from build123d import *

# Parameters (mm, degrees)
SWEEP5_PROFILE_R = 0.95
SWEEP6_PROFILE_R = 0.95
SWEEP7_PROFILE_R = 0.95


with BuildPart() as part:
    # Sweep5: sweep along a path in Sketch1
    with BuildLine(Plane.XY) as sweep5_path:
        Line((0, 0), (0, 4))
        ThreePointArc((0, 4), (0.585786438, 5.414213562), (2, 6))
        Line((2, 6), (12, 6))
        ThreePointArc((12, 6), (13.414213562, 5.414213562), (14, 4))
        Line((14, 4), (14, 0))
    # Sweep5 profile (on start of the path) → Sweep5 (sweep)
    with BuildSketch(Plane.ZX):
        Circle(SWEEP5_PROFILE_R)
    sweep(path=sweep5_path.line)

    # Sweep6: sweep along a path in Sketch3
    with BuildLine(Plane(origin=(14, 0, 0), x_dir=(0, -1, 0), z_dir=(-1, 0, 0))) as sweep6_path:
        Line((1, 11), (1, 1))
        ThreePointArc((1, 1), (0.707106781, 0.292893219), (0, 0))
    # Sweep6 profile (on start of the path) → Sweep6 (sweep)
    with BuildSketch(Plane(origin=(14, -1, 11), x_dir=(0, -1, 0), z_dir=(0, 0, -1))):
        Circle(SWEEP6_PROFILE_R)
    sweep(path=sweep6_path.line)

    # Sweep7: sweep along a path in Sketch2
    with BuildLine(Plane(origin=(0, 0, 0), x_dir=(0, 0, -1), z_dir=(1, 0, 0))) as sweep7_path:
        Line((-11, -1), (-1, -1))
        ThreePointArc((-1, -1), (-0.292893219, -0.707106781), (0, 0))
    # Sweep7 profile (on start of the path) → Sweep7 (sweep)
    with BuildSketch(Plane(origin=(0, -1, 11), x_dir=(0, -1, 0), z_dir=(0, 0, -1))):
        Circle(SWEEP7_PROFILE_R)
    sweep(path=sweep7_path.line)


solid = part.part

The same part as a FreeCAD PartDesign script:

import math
import FreeCAD as App
import Part
import Sketcher
Q = App.Units.Quantity

doc = App.newDocument("Part")
body = doc.addObject("PartDesign::Body", "Body")

# Sketch on XZ plane
sketch1 = body.newObject("Sketcher::SketchObject", "Sketch")
sketch1.AttachmentSupport = (doc.getObject("XZ_Plane"), [""])
sketch1.MapMode = "FlatFace"
sketch1.addGeometry(Part.Circle(App.Vector(0, 0, 0), App.Vector(0, 0, 1), 0.9), False)
sketch1.addConstraint(Sketcher.Constraint("Coincident", 0, 3, -1, 1))
sketch1.addConstraint(Sketcher.Constraint("Diameter", 0, Q("1.9 mm")))

# Sketch on XY plane
sketch2 = body.newObject("Sketcher::SketchObject", "Sketch001")
sketch2.AttachmentSupport = (doc.getObject("XY_Plane"), [""])
sketch2.MapMode = "FlatFace"
sketch2.addGeometry(Part.LineSegment(App.Vector(0, 0, 0), App.Vector(0, 4, 0)), False)
sketch2.addGeometry(Part.ArcOfCircle(Part.Circle(App.Vector(2, 4, 0), App.Vector(0, 0, 1), 2), math.radians(90), math.radians(180)), False)
sketch2.addGeometry(Part.LineSegment(App.Vector(2, 6, 0), App.Vector(12, 6, 0)), False)
sketch2.addGeometry(Part.ArcOfCircle(Part.Circle(App.Vector(12, 4, 0), App.Vector(0, 0, 1), 2), math.radians(0), math.radians(90)), False)
sketch2.addGeometry(Part.LineSegment(App.Vector(14, 4, 0), App.Vector(14, 0, 0)), False)
sketch2.addConstraint(Sketcher.Constraint("Tangent", 0, 2, 1, 2))
sketch2.addConstraint(Sketcher.Constraint("Tangent", 1, 1, 2, 1))
sketch2.addConstraint(Sketcher.Constraint("Tangent", 2, 2, 3, 2))
sketch2.addConstraint(Sketcher.Constraint("Tangent", 3, 1, 4, 1))
sketch2.addConstraint(Sketcher.Constraint("Vertical", 0))
sketch2.addConstraint(Sketcher.Constraint("Horizontal", 2))
sketch2.addConstraint(Sketcher.Constraint("Vertical", 4))
sketch2.addConstraint(Sketcher.Constraint("Coincident", 0, 1, -1, 1))
sketch2.addConstraint(Sketcher.Constraint("Equal", 1, 3))
sketch2.addConstraint(Sketcher.Constraint("PointOnObject", 4, 2, -1))
sketch2.addConstraint(Sketcher.Constraint("Radius", 1, Q("2 mm")))
sketch2.addConstraint(Sketcher.Constraint("DistanceX", 2, 1, 2, 2, Q("10 mm")))
sketch2.addConstraint(Sketcher.Constraint("DistanceY", 0, 1, 0, 2, Q("4 mm")))
doc.recompute()

additivepipe = body.newObject("PartDesign::AdditivePipe", "AdditivePipe")
additivepipe.Profile = sketch1
additivepipe.Spine = (sketch2, ["Edge1", "Edge2", "Edge3", "Edge4", "Edge5"])

# Sketch on XY plane
sketch3 = body.newObject("Sketcher::SketchObject", "Sketch002")
sketch3.AttachmentSupport = (doc.getObject("XY_Plane"), [""])
sketch3.MapMode = "FlatFace"
sketch3.AttachmentOffset = App.Placement(App.Vector(0, 0, 11), App.Rotation())
sketch3.addGeometry(Part.Circle(App.Vector(14, -1, 0), App.Vector(0, 0, 1), 0.9), False)
sketch3.addConstraint(Sketcher.Constraint("Diameter", 0, Q("1.9 mm")))
sketch3.addConstraint(Sketcher.Constraint("DistanceX", -1, 1, 0, 3, Q("14 mm")))
sketch3.addConstraint(Sketcher.Constraint("DistanceY", 0, 3, -1, 1, Q("1 mm")))

# Sketch on YZ plane
sketch4 = body.newObject("Sketcher::SketchObject", "Sketch003")
sketch4.AttachmentSupport = (doc.getObject("YZ_Plane"), [""])
sketch4.MapMode = "FlatFace"
sketch4.AttachmentOffset = App.Placement(App.Vector(0, 0, 14), App.Rotation())
sketch4.addGeometry(Part.LineSegment(App.Vector(-1, 11, 0), App.Vector(-1, 1, 0)), False)
sketch4.addGeometry(Part.ArcOfCircle(Part.Circle(App.Vector(0, 1, 0), App.Vector(0, 0, 1), 1), math.radians(-180), math.radians(-90)), False)
sketch4.addConstraint(Sketcher.Constraint("Tangent", 0, 2, 1, 1))
sketch4.addConstraint(Sketcher.Constraint("Vertical", 0))
sketch4.addConstraint(Sketcher.Constraint("Coincident", 1, 2, -1, 1))
sketch4.addConstraint(Sketcher.Constraint("PointOnObject", 1, 3, -2))
sketch4.addConstraint(Sketcher.Constraint("Radius", 1, Q("1 mm")))
sketch4.addConstraint(Sketcher.Constraint("DistanceY", 0, 2, 0, 1, Q("10 mm")))
doc.recompute()

additivepipe2 = body.newObject("PartDesign::AdditivePipe", "AdditivePipe001")
additivepipe2.Profile = sketch3
additivepipe2.Spine = (sketch4, ["Edge1", "Edge2"])

# Sketch on XY plane
sketch5 = body.newObject("Sketcher::SketchObject", "Sketch004")
sketch5.AttachmentSupport = (doc.getObject("XY_Plane"), [""])
sketch5.MapMode = "FlatFace"
sketch5.AttachmentOffset = App.Placement(App.Vector(0, 0, 11), App.Rotation())
sketch5.addGeometry(Part.Circle(App.Vector(0, -1, 0), App.Vector(0, 0, 1), 0.9), False)
sketch5.addConstraint(Sketcher.Constraint("PointOnObject", 0, 3, -2))
sketch5.addConstraint(Sketcher.Constraint("Diameter", 0, Q("1.9 mm")))
sketch5.addConstraint(Sketcher.Constraint("DistanceY", 0, 3, -1, 1, Q("1 mm")))

# Sketch on YZ plane
sketch6 = body.newObject("Sketcher::SketchObject", "Sketch005")
sketch6.AttachmentSupport = (doc.getObject("YZ_Plane"), [""])
sketch6.MapMode = "FlatFace"
sketch6.addGeometry(Part.LineSegment(App.Vector(-1, 11, 0), App.Vector(-1, 1, 0)), False)
sketch6.addGeometry(Part.ArcOfCircle(Part.Circle(App.Vector(0, 1, 0), App.Vector(0, 0, 1), 1), math.radians(-180), math.radians(-90)), False)
sketch6.addConstraint(Sketcher.Constraint("Tangent", 0, 2, 1, 1))
sketch6.addConstraint(Sketcher.Constraint("Vertical", 0))
sketch6.addConstraint(Sketcher.Constraint("Coincident", 1, 2, -1, 1))
sketch6.addConstraint(Sketcher.Constraint("PointOnObject", 1, 3, -2))
sketch6.addConstraint(Sketcher.Constraint("Radius", 1, Q("1 mm")))
sketch6.addConstraint(Sketcher.Constraint("DistanceY", 0, 2, 0, 1, Q("10 mm")))
doc.recompute()

additivepipe3 = body.newObject("PartDesign::AdditivePipe", "AdditivePipe002")
additivepipe3.Profile = sketch5
additivepipe3.Spine = (sketch6, ["Edge1", "Edge2"])

doc.recompute()
